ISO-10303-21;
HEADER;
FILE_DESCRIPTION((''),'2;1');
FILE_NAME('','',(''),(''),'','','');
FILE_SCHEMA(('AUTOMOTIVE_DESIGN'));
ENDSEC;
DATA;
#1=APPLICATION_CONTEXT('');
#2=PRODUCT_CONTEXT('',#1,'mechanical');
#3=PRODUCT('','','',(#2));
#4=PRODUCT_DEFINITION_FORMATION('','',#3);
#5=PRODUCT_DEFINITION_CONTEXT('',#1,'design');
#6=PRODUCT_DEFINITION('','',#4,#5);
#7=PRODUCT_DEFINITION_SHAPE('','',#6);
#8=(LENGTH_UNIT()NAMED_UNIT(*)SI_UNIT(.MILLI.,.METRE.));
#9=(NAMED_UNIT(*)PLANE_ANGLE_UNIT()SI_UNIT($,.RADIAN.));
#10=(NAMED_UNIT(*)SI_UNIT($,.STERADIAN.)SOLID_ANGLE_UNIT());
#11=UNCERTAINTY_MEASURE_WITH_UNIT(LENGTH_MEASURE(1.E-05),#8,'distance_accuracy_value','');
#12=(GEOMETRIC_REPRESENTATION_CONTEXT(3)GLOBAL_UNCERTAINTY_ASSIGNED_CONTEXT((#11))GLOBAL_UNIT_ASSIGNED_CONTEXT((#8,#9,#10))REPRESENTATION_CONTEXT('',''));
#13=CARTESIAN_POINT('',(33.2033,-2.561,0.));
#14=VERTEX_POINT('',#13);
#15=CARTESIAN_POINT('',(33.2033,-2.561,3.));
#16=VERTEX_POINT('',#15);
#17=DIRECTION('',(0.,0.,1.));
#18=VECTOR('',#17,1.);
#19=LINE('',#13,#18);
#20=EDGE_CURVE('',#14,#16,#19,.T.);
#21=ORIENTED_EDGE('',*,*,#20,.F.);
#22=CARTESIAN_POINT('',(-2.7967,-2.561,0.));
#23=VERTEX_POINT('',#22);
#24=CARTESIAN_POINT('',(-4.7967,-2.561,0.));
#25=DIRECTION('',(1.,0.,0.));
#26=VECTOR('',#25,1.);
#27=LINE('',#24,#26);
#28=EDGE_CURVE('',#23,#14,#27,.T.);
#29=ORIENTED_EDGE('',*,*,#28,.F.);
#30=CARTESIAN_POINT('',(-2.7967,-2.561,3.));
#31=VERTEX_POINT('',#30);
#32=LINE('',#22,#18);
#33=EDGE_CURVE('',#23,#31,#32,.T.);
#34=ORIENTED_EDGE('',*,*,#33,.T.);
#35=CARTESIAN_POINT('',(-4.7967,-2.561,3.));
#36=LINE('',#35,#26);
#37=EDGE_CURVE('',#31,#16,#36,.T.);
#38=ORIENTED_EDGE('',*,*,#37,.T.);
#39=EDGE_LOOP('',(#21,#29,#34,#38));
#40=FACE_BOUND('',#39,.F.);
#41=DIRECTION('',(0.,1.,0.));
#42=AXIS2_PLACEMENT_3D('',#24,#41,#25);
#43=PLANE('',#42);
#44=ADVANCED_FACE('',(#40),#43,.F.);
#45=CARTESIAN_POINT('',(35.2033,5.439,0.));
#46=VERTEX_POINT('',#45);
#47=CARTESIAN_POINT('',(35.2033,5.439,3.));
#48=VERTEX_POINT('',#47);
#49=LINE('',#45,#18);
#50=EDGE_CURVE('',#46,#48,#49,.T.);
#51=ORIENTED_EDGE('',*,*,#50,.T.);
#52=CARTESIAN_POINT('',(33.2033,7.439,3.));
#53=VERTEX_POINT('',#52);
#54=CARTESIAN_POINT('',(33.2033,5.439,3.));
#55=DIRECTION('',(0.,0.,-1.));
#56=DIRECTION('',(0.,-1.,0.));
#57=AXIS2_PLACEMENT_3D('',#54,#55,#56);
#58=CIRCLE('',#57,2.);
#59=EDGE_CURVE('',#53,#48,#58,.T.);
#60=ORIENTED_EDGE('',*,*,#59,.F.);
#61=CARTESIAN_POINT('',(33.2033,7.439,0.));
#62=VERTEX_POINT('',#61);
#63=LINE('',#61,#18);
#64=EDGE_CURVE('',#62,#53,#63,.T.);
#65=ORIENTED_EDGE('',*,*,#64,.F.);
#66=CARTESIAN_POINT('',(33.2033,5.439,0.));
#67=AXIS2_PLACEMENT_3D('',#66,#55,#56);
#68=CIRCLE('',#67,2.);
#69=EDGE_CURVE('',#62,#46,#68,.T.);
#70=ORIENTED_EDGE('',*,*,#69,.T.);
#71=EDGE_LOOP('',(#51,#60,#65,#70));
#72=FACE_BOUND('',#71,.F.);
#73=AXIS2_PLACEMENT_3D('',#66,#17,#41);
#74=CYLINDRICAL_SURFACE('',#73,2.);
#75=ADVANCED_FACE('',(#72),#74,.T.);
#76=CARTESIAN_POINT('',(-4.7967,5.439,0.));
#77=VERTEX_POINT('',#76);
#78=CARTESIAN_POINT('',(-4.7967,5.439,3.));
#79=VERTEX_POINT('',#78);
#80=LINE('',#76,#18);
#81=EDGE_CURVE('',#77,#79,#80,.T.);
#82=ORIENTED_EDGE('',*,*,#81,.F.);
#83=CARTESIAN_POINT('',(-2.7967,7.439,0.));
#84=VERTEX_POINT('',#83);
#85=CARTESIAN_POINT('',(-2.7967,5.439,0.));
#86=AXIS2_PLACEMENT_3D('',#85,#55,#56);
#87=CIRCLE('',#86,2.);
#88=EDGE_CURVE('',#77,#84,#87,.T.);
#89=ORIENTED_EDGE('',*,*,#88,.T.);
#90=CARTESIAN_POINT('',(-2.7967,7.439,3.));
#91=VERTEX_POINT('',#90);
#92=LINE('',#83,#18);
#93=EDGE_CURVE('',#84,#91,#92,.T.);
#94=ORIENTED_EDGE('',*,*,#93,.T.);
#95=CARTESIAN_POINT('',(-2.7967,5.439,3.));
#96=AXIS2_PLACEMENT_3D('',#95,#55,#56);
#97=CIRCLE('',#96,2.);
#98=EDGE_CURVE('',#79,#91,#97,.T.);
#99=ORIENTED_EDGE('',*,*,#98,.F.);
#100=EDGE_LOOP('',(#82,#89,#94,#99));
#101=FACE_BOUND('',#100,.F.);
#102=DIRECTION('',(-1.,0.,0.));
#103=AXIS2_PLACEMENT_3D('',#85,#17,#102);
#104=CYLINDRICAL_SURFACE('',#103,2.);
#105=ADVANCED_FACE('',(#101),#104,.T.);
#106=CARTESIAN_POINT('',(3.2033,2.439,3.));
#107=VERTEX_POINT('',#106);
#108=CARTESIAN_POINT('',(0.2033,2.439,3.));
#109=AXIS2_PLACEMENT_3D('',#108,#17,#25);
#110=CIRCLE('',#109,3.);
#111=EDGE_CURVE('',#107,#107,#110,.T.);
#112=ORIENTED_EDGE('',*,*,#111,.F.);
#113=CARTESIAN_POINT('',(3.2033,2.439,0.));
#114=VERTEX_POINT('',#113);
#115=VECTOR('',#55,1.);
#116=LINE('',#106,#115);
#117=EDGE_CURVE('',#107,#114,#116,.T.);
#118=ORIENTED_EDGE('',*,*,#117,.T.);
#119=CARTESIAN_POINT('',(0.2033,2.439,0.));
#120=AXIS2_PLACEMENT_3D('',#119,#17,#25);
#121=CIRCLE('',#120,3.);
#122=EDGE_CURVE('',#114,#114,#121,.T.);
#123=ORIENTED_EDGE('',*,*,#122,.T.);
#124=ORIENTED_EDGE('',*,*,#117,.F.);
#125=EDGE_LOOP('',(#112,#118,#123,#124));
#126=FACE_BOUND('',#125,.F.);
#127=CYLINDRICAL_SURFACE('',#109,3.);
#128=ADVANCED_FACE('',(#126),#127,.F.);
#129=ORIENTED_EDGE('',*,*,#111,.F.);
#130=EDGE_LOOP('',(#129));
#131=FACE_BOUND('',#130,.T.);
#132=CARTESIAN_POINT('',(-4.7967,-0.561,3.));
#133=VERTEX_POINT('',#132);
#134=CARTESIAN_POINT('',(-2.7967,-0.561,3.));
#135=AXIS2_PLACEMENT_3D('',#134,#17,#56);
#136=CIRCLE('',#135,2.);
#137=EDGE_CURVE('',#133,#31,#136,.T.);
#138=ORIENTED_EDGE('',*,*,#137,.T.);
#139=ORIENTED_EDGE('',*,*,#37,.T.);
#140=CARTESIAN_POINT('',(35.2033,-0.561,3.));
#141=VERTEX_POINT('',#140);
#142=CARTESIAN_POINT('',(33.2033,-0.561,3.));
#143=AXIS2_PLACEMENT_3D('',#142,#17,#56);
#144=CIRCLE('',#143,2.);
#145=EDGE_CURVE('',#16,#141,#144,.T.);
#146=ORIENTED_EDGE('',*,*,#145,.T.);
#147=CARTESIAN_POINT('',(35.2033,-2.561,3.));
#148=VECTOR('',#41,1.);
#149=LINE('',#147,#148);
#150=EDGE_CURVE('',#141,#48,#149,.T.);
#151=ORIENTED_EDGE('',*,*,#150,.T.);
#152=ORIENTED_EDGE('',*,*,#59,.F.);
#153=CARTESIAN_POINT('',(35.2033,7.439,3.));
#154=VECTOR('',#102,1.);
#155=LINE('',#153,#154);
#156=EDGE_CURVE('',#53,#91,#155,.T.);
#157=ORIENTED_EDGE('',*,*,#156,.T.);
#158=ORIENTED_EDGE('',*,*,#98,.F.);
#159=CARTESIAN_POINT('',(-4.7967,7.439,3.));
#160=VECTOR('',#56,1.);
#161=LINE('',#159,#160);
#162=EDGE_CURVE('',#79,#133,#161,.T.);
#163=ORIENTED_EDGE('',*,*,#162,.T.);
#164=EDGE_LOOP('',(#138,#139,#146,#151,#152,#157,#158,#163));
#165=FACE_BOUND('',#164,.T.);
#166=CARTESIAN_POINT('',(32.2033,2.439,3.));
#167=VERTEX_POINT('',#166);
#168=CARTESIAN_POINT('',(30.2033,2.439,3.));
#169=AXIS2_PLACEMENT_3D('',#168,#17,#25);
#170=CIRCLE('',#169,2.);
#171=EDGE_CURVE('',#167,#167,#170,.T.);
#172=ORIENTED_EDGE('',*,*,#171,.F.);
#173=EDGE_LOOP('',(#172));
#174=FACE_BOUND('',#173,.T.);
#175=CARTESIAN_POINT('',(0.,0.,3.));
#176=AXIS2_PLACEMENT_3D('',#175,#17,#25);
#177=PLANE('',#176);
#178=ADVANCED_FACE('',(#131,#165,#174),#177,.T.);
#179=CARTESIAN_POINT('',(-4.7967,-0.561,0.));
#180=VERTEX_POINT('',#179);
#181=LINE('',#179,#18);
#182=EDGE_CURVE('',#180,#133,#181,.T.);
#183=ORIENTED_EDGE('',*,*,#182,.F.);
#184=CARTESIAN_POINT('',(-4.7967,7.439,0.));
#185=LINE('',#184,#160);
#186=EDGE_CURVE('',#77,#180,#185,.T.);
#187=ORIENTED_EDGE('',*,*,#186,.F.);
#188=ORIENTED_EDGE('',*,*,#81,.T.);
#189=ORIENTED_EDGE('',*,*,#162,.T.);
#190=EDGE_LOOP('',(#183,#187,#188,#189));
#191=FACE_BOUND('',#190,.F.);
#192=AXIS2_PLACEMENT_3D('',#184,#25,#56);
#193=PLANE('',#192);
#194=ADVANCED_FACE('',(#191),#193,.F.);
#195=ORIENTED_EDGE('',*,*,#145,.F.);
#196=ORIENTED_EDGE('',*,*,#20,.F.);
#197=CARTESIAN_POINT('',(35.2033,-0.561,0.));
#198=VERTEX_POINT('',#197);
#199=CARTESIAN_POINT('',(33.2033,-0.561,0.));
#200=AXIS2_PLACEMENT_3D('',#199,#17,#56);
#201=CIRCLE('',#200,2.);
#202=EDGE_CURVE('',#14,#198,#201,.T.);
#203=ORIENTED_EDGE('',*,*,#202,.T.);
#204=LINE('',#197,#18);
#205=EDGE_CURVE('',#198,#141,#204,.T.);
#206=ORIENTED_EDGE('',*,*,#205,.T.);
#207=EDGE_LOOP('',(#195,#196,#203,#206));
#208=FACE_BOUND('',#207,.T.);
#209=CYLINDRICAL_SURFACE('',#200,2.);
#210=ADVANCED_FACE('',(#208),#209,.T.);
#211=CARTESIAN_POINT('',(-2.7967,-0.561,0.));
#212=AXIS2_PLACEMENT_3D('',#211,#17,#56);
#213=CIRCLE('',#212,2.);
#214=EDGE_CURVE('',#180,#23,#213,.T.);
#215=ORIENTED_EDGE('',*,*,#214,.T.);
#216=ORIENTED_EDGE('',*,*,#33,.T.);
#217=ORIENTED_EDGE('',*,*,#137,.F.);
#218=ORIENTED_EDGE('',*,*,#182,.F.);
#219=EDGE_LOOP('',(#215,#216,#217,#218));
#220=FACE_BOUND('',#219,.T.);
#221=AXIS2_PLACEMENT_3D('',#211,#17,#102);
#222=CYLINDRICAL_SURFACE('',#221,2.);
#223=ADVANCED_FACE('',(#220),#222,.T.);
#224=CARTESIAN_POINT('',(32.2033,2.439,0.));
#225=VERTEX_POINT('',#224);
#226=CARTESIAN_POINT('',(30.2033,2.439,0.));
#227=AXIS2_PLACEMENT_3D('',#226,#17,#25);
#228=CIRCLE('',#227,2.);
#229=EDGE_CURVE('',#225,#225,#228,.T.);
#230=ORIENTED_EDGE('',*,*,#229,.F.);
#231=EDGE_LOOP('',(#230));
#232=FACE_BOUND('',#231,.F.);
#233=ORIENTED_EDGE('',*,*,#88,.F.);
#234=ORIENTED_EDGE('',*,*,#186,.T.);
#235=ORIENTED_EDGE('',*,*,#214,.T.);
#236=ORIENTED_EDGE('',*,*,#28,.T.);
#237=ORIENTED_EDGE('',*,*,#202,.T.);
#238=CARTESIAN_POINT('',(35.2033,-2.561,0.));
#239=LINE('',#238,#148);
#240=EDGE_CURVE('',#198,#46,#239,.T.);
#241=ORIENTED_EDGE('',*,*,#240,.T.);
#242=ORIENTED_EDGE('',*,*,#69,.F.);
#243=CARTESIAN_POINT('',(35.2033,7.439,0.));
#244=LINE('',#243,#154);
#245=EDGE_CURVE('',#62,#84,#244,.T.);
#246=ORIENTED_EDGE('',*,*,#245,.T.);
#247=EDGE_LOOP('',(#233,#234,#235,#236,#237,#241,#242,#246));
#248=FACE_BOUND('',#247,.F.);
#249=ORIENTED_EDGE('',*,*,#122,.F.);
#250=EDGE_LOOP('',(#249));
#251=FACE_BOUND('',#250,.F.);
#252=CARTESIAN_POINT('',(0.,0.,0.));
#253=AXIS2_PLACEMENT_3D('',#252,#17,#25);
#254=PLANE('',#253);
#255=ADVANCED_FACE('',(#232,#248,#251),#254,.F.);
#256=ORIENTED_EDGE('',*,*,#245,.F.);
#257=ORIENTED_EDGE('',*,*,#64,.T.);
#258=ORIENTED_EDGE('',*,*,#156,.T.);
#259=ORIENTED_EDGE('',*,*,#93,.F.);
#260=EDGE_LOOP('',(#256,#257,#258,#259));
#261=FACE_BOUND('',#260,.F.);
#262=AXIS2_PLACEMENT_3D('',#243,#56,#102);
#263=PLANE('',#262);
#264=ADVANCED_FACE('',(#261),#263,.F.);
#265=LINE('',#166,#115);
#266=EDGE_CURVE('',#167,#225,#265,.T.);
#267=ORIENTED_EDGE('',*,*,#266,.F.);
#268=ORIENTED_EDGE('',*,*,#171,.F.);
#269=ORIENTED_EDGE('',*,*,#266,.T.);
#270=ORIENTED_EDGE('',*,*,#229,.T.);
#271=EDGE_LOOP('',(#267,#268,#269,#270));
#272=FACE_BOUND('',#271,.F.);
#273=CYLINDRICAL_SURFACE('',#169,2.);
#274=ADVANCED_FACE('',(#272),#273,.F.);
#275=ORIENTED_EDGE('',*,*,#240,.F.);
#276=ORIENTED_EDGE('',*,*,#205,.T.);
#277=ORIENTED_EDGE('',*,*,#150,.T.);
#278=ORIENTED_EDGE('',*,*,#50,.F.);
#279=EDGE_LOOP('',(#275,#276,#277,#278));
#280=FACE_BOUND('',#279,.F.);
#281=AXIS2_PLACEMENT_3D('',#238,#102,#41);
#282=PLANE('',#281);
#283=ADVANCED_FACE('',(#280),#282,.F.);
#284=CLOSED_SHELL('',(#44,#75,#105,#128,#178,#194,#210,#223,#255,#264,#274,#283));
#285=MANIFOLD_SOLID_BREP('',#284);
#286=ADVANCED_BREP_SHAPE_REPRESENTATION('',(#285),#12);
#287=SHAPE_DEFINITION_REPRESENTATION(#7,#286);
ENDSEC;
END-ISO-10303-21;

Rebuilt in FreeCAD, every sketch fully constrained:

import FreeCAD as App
import Part
import Sketcher
from FreeCAD import Vector
Q = App.Units.Quantity


def edges_at(feature, points):
    """Names of the edges that pass closest to the given points."""
    edges = feature.Shape.Edges
    near = lambda p: min(range(len(edges)), key=lambda i: edges[i].distToShape(Part.Vertex(*p))[0])
    return sorted({f"Edge{near(p) + 1}" for p in points})


def add_polygon(sketch, points):
    """Adds a closed chain of lines whose ends are joined by coincident constraints."""
    first, n = sketch.GeometryCount, len(points)
    for a, b in zip(points, points[1:] + points[:1]):
        sketch.addGeometry(Part.LineSegment(App.Vector(*a, 0), App.Vector(*b, 0)), False)
    for i in range(n):
        sketch.addConstraint(Sketcher.Constraint("Coincident", first + i, 2, first + (i + 1) % n, 1))

doc = App.newDocument("Part")
body = doc.addObject("PartDesign::Body", "Body")

# Sketch on XY plane
sketch1 = body.newObject("Sketcher::SketchObject", "Sketch")
sketch1.AttachmentSupport = (doc.getObject("XY_Plane"), [""])
sketch1.MapMode = "FlatFace"
add_polygon(sketch1, [(-4.7967, 7.439), (-4.7967, -2.561), (35.2033, -2.561), (35.2033, 7.439)])  # lines 0-3
sketch1.addConstraint([
    Sketcher.Constraint("Vertical", 0),
    Sketcher.Constraint("Horizontal", 1),
    Sketcher.Constraint("Vertical", 2),
    Sketcher.Constraint("Horizontal", 3),
    Sketcher.Constraint("DistanceX", 1, 1, 1, 2, Q("40 mm")),
    Sketcher.Constraint("DistanceY", 0, 2, 0, 1, Q("10 mm")),
    Sketcher.Constraint("DistanceY", 0, 2, -1, 1, Q("2.561 mm")),
    Sketcher.Constraint("DistanceX", 0, 2, -1, 1, Q("4.7967 mm")),
])
pad1 = body.newObject("PartDesign::Pad", "Pad")
pad1.Profile = sketch1
pad1.Length = 3

# Sketch on XY plane
sketch2 = body.newObject("Sketcher::SketchObject", "Sketch001")
sketch2.AttachmentSupport = (doc.getObject("XY_Plane"), [""])
sketch2.MapMode = "FlatFace"
sketch2.AttachmentOffset = App.Placement(Vector(0, 0, 3), App.Rotation())
sketch2.addGeometry([
    Part.Circle(Vector(0.2033, 2.439, 0), Vector(0, 0, 1), 3),
    Part.Circle(Vector(30.2033, 2.439, 0), Vector(0, 0, 1), 2),
], False)
sketch2.addConstraint([
    Sketcher.Constraint("Horizontal", 0, 3, 1, 3),
    Sketcher.Constraint("Diameter", 0, Q("6 mm")),
    Sketcher.Constraint("Diameter", 1, Q("4 mm")),
    Sketcher.Constraint("DistanceX", 0, 3, 1, 3, Q("30 mm")),
    Sketcher.Constraint("DistanceY", -1, 1, 0, 3, Q("2.439 mm")),
    Sketcher.Constraint("DistanceX", -1, 1, 0, 3, Q("0.2033 mm")),
])
pocket1 = body.newObject("PartDesign::Pocket", "Pocket")
pocket1.Profile = sketch2
pocket1.Length = 10
doc.recompute()

fillet = body.newObject("PartDesign::Fillet", "Fillet")
fillet.Base = (pocket1, edges_at(pocket1, [
    (-4.797, 7.439, 1.5),
    (-4.797, -2.561, 1.5),
    (35.203, -2.561, 1.5),
    (35.203, 7.439, 1.5),
]))
fillet.Radius = 2

doc.recompute()
